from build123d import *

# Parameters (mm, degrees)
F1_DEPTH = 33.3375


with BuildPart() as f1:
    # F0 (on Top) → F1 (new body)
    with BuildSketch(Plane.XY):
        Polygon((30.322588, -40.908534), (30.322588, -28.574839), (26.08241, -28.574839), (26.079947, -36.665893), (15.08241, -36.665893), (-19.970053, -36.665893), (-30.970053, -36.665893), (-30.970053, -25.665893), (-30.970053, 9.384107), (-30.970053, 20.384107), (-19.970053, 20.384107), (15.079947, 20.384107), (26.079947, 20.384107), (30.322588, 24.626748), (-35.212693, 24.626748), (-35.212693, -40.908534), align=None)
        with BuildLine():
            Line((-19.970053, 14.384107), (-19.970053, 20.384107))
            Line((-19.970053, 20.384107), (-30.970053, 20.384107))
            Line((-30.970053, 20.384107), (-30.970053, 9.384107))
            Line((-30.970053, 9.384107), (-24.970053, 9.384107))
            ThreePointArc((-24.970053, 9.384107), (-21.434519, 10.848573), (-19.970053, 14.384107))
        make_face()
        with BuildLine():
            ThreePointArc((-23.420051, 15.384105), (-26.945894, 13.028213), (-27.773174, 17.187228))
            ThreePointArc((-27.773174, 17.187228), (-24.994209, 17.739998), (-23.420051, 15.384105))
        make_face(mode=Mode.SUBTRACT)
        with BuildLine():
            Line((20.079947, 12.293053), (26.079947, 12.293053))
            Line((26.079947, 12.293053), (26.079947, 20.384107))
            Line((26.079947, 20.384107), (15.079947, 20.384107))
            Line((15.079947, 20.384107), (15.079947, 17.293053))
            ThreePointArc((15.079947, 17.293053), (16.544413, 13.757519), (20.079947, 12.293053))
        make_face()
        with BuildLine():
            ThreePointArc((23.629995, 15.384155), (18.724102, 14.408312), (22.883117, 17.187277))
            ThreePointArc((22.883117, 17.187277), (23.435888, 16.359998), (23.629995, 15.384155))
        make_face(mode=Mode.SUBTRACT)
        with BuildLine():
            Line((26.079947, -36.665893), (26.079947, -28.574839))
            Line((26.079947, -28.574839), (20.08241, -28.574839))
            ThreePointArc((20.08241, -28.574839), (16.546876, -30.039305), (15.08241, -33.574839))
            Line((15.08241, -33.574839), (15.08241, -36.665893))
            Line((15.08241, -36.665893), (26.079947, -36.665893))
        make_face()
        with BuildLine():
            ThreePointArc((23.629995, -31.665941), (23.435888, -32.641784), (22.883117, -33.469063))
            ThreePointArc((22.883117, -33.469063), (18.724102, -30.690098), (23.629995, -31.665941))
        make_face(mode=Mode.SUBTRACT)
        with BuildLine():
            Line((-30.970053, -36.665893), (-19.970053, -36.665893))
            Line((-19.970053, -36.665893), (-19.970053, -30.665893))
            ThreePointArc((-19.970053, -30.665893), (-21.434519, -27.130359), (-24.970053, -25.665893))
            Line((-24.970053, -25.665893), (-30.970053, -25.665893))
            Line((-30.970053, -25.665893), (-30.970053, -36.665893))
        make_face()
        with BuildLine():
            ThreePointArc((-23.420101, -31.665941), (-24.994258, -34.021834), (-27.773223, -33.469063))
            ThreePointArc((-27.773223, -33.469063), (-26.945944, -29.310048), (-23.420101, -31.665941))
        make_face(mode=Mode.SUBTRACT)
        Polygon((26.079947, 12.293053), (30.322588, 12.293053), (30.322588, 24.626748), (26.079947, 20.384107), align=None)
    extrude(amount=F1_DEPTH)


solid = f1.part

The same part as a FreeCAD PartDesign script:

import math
import FreeCAD as App
import Part
import Sketcher
from FreeCAD import Vector
Q = App.Units.Quantity

doc = App.newDocument("Part")
body = doc.addObject("PartDesign::Body", "Body")

# Sketch on XY plane
sketch1 = body.newObject("Sketcher::SketchObject", "Sketch")
sketch1.AttachmentSupport = (doc.getObject("XY_Plane"), [""])
sketch1.MapMode = "FlatFace"
sketch1.addGeometry([
    Part.LineSegment(Vector(30.3, -40.9, 0), Vector(30.3, -28.6, 0)),  # 0
    Part.LineSegment(Vector(30.3, -28.6, 0), Vector(26.1, -28.6, 0)),  # 1
    Part.LineSegment(Vector(26.1, -28.6, 0), Vector(26.1, -36.7, 0)),  # 2
    Part.LineSegment(Vector(26.1, -36.7, 0), Vector(26.1, -28.6, 0)),  # 3
    Part.LineSegment(Vector(26.1, -28.6, 0), Vector(20.1, -28.6, 0)),  # 4
    Part.ArcOfCircle(Part.Circle(Vector(20.1, -33.6, 0), Vector(0, 0, 1), 5), math.radians(90), math.radians(180)),  # 5
    Part.LineSegment(Vector(15.1, -33.6, 0), Vector(15.1, -36.7, 0)),  # 6
    Part.LineSegment(Vector(15.1, -36.7, 0), Vector(-20, -36.7, 0)),  # 7
    Part.LineSegment(Vector(-20, -36.7, 0), Vector(-20, -30.7, 0)),  # 8
    Part.ArcOfCircle(Part.Circle(Vector(-25, -30.7, 0), Vector(0, 0, 1), 5), math.radians(0), math.radians(90)),  # 9
    Part.LineSegment(Vector(-25, -25.7, 0), Vector(-31, -25.7, 0)),  # 10
    Part.LineSegment(Vector(-31, -25.7, 0), Vector(-31, 9.4, 0)),  # 11
    Part.LineSegment(Vector(-31, 9.4, 0), Vector(-25, 9.4, 0)),  # 12
    Part.ArcOfCircle(Part.Circle(Vector(-25, 14.4, 0), Vector(0, 0, 1), 5), math.radians(-90), math.radians(0)),  # 13
    Part.LineSegment(Vector(-20, 14.4, 0), Vector(-20, 20.4, 0)),  # 14
    Part.LineSegment(Vector(-20, 20.4, 0), Vector(15.1, 20.4, 0)),  # 15
    Part.LineSegment(Vector(15.1, 20.4, 0), Vector(15.1, 17.3, 0)),  # 16
    Part.ArcOfCircle(Part.Circle(Vector(20.1, 17.3, 0), Vector(0, 0, 1), 5), math.radians(180), math.radians(270)),  # 17
    Part.LineSegment(Vector(20.1, 12.3, 0), Vector(30.3, 12.3, 0)),  # 18
    Part.LineSegment(Vector(30.3, 12.3, 0), Vector(30.3, 24.6, 0)),  # 19
    Part.LineSegment(Vector(30.3, 24.6, 0), Vector(-35.2, 24.6, 0)),  # 20
    Part.LineSegment(Vector(-35.2, 24.6, 0), Vector(-35.2, -40.9, 0)),  # 21
    Part.LineSegment(Vector(-35.2, -40.9, 0), Vector(30.3, -40.9, 0)),  # 22
    Part.ArcOfCircle(Part.Circle(Vector(-26, -31.7, 0), Vector(0, 0, 1), 2.5), math.radians(0), math.radians(225)),  # 23
    Part.ArcOfCircle(Part.Circle(Vector(-26, -31.7, 0), Vector(0, 0, 1), 2.5), math.radians(-135), math.radians(0)),  # 24
    Part.ArcOfCircle(Part.Circle(Vector(21.1, -31.7, 0), Vector(0, 0, 1), 2.6), math.radians(0), math.radians(315)),  # 25
    Part.ArcOfCircle(Part.Circle(Vector(21.1, -31.7, 0), Vector(0, 0, 1), 2.5), math.radians(-45), math.radians(0)),  # 26
    Part.ArcOfCircle(Part.Circle(Vector(-26, 15.4, 0), Vector(0, 0, 1), 2.6), math.radians(0), math.radians(135)),  # 27
    Part.ArcOfCircle(Part.Circle(Vector(-26, 15.4, 0), Vector(0, 0, 1), 2.6), math.radians(135), math.radians(360)),  # 28
    Part.ArcOfCircle(Part.Circle(Vector(21.1, 15.4, 0), Vector(0, 0, 1), 2.5), math.radians(0), math.radians(45)),  # 29
    Part.ArcOfCircle(Part.Circle(Vector(21.1, 15.4, 0), Vector(0, 0, 1), 2.6), math.radians(45), math.radians(360)),  # 30
], False)
sketch1.addConstraint([
    Sketcher.Constraint("Coincident", 0, 2, 1, 1),
    Sketcher.Constraint("Coincident", 1, 2, 2, 1),
    Sketcher.Constraint("Coincident", 2, 2, 3, 1),
    Sketcher.Constraint("Coincident", 3, 2, 4, 1),
    Sketcher.Constraint("Tangent", 4, 2, 5, 1),
    Sketcher.Constraint("Tangent", 5, 2, 6, 1),
    Sketcher.Constraint("Coincident", 6, 2, 7, 1),
    Sketcher.Constraint("Coincident", 7, 2, 8, 1),
    Sketcher.Constraint("Tangent", 8, 2, 9, 1),
    Sketcher.Constraint("Tangent", 9, 2, 10, 1),
    Sketcher.Constraint("Coincident", 10, 2, 11, 1),
    Sketcher.Constraint("Coincident", 11, 2, 12, 1),
    Sketcher.Constraint("Tangent", 12, 2, 13, 1),
    Sketcher.Constraint("Tangent", 13, 2, 14, 1),
    Sketcher.Constraint("Coincident", 14, 2, 15, 1),
    Sketcher.Constraint("Coincident", 15, 2, 16, 1),
    Sketcher.Constraint("Tangent", 16, 2, 17, 1),
    Sketcher.Constraint("Tangent", 17, 2, 18, 1),
    Sketcher.Constraint("Coincident", 18, 2, 19, 1),
    Sketcher.Constraint("Coincident", 19, 2, 20, 1),
    Sketcher.Constraint("Coincident", 20, 2, 21, 1),
    Sketcher.Constraint("Coincident", 21, 2, 22, 1),
    Sketcher.Constraint("Coincident", 22, 2, 0, 1),
    Sketcher.Constraint("Tangent", 23, 1, 24, 2),
    Sketcher.Constraint("Coincident", 24, 1, 23, 2),
    Sketcher.Constraint("Tangent", 25, 1, 26, 2),
    Sketcher.Constraint("Coincident", 26, 1, 25, 2),
    Sketcher.Constraint("Tangent", 27, 1, 28, 2),
    Sketcher.Constraint("Coincident", 28, 1, 27, 2),
    Sketcher.Constraint("Tangent", 29, 1, 30, 2),
    Sketcher.Constraint("Coincident", 30, 1, 29, 2),
    Sketcher.Constraint("Vertical", 0),
    Sketcher.Constraint("Horizontal", 1),
    Sketcher.Constraint("Vertical", 3),
    Sketcher.Constraint("Horizontal", 4),
    Sketcher.Constraint("Vertical", 6),
    Sketcher.Constraint("Horizontal", 7),
    Sketcher.Constraint("Vertical", 8),
    Sketcher.Constraint("Horizontal", 10),
    Sketcher.Constraint("Vertical", 11),
    Sketcher.Constraint("Horizontal", 12),
    Sketcher.Constraint("Vertical", 14),
    Sketcher.Constraint("Horizontal", 15),
    Sketcher.Constraint("Vertical", 16),
    Sketcher.Constraint("Horizontal", 18),
    Sketcher.Constraint("Vertical", 19),
    Sketcher.Constraint("Horizontal", 20),
    Sketcher.Constraint("Vertical", 21),
    Sketcher.Constraint("Horizontal", 22),
    Sketcher.Constraint("Equal", 5, 9),
    Sketcher.Constraint("Equal", 9, 13),
    Sketcher.Constraint("Equal", 13, 17),
    Sketcher.Constraint("Equal", 24, 25),
    Sketcher.Constraint("Equal", 25, 27),
    Sketcher.Constraint("Equal", 26, 29),
    Sketcher.Constraint("Horizontal", 24, 3, 25, 3),
    Sketcher.Constraint("Horizontal", 1, 2, 3, 2),
    Sketcher.Constraint("Horizontal", 2, 2, 6, 2),
    Sketcher.Constraint("Horizontal", 26, 3, 23, 1),
    Sketcher.Constraint("Horizontal", 23, 1, 25, 1),
    Sketcher.Constraint("Horizontal", 24, 1, 26, 1),
    Sketcher.Constraint("Horizontal", 28, 3, 27, 1),
    Sketcher.Constraint("Horizontal", 30, 3, 29, 1),
    Sketcher.Constraint("Vertical", 9, 3, 13, 3),
    Sketcher.Constraint("Vertical", 26, 3, 29, 3),
    Sketcher.Constraint("Vertical", 0, 2, 18, 2),
    Sketcher.Constraint("Vertical", 26, 1, 30, 1),
    Sketcher.Constraint("Equal", 12, 8),
    Sketcher.Constraint("Equal", 15, 11),
    Sketcher.Constraint("Equal", 8, 14),
    Sketcher.Constraint("Equal", 6, 16),
    Sketcher.Constraint("Equal", 0, 19),
    Sketcher.Constraint("Equal", 22, 21),
    Sketcher.Constraint("Radius", 5, Q("5 mm")),
    Sketcher.Constraint("DistanceX", 10, 2, 10, 1, Q("6 mm")),
    Sketcher.Constraint("Radius", 23, Q("2.55 mm")),
    Sketcher.Constraint("DistanceX", 27, 3, 13, 3, Q("0.999999 mm")),
    Sketcher.Constraint("DistanceY", 13, 3, 28, 3, Q("0.999999 mm")),
    Sketcher.Constraint("DistanceX", 5, 3, 1, 2, Q("6 mm")),
    Sketcher.Constraint("DistanceX", 15, 1, 15, 2, Q("35.05 mm")),
    Sketcher.Constraint("DistanceX", -1, 1, 26, 3, Q("21.080001 mm")),
    Sketcher.Constraint("DistanceX", 1, 2, 1, 1, Q("4.240178 mm")),
    Sketcher.Constraint("DistanceX", 18, 1, 18, 2, Q("10.242641 mm")),
    Sketcher.Constraint("DistanceX", 20, 2, 20, 1, Q("65.535281 mm")),
    Sketcher.Constraint("DistanceX", 23, 3, -1, 1, Q("25.970101 mm")),
    Sketcher.Constraint("DistanceY", 5, 3, 23, 3, Q("1.908898 mm")),
    Sketcher.Constraint("DistanceY", 30, 3, 17, 3, Q("1.908898 mm")),
    Sketcher.Constraint("DistanceX", 4, 2, 4, 1, Q("5.997537 mm")),
    Sketcher.Constraint("DistanceY", 0, 1, 0, 2, Q("12.333695 mm")),
    Sketcher.Constraint("DistanceX", -1, 1, 5, 3, Q("20.08241 mm")),
    Sketcher.Constraint("DistanceY", 5, 3, -1, 1, Q("33.574839 mm")),
    Sketcher.Constraint("DistanceY", -1, 1, 28, 1, Q("17.187228 mm")),
    Sketcher.Constraint("DistanceY", 24, 1, 24, 3, Q("1.803121 mm")),
])
pad1 = body.newObject("PartDesign::Pad", "Pad")
pad1.Profile = sketch1
pad1.Length = 33.3375

doc.recompute()
